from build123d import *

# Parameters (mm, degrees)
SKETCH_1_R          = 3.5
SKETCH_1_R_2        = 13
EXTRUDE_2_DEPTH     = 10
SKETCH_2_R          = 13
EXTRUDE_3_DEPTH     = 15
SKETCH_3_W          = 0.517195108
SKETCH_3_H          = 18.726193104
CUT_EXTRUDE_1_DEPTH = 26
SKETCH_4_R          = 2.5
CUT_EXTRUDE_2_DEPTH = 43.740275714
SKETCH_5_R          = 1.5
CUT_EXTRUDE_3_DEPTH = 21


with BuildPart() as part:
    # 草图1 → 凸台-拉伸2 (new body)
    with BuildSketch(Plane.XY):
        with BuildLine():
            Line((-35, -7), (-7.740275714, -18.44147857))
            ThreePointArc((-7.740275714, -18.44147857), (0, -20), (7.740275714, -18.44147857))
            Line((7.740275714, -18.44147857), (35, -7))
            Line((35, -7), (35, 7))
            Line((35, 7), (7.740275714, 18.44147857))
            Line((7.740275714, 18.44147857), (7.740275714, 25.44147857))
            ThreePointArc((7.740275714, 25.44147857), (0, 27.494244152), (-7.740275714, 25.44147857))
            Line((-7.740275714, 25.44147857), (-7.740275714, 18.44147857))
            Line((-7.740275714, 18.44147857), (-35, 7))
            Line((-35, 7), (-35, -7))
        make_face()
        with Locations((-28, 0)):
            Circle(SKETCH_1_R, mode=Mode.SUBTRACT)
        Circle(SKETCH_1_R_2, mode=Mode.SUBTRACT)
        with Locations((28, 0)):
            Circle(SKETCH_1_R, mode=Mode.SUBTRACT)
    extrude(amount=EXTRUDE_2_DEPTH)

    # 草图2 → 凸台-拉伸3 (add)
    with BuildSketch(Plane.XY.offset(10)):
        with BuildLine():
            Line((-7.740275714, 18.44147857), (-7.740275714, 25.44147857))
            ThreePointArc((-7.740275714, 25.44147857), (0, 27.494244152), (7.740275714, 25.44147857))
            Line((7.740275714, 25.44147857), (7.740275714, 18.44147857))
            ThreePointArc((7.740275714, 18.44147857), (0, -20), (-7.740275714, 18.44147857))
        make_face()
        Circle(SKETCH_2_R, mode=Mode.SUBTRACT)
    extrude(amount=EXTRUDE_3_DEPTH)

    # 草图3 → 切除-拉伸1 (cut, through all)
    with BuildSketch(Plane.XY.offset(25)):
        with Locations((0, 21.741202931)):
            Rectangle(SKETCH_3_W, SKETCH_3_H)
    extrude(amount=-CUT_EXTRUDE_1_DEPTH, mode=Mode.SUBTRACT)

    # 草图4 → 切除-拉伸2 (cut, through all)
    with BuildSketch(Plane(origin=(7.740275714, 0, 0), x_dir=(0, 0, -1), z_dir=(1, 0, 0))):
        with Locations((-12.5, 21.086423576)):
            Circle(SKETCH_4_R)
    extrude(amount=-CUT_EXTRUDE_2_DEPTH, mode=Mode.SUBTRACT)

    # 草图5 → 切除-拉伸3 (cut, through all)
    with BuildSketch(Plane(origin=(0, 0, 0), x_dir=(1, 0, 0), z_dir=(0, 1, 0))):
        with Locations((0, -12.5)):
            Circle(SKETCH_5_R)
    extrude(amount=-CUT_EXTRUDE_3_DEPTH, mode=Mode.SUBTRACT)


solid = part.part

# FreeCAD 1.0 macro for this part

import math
import FreeCAD as App
import Part
import Sketcher
Q = App.Units.Quantity


def add_polygon(sketch, points):
    """Adds a closed chain of lines whose ends are joined by coincident constraints."""
    first, n = sketch.GeometryCount, len(points)
    for a, b in zip(points, points[1:] + points[:1]):
        sketch.addGeometry(Part.LineSegment(App.Vector(*a, 0), App.Vector(*b, 0)), False)
    for i in range(n):
        sketch.addConstraint(Sketcher.Constraint("Coincident", first + i, 2, first + (i + 1) % n, 1))

doc = App.newDocument("Part")
body = doc.addObject("PartDesign::Body", "Body")

# Sketch on XY plane
sketch1 = doc.addObject("Sketcher::SketchObject", "Sketch")
body.addObject(sketch1)
sketch1.AttachmentSupport = (doc.XY_Plane, [""])
sketch1.MapMode = "FlatFace"
sketch1.addGeometry([
    Part.LineSegment(App.Vector(-35, -7, 0), App.Vector(-7.7, -18.4, 0)),  # 0
    Part.ArcOfCircle(Part.Circle(App.Vector(0, 0, 0), App.Vector(0, 0, 1), 20), math.radians(-113), math.radians(-67)),  # 1
    Part.LineSegment(App.Vector(7.7, -18.4, 0), App.Vector(35, -7, 0)),  # 2
    Part.LineSegment(App.Vector(35, -7, 0), App.Vector(35, 7, 0)),  # 3
    Part.LineSegment(App.Vector(35, 7, 0), App.Vector(7.7, 18.4, 0)),  # 4
    Part.LineSegment(App.Vector(7.7, 18.4, 0), App.Vector(7.7, 25.4, 0)),  # 5
    Part.ArcOfCircle(Part.Circle(App.Vector(0, 11.9, 0), App.Vector(0, 0, 1), 15.6), math.radians(60), math.radians(120)),  # 6
    Part.LineSegment(App.Vector(-7.7, 25.4, 0), App.Vector(-7.7, 18.4, 0)),  # 7
    Part.LineSegment(App.Vector(-7.7, 18.4, 0), App.Vector(-35, 7, 0)),  # 8
    Part.LineSegment(App.Vector(-35, 7, 0), App.Vector(-35, -7, 0)),  # 9
    Part.Circle(App.Vector(-28, 0, 0), App.Vector(0, 0, 1), 3.5),  # 10
    Part.Circle(App.Vector(0, 0, 0), App.Vector(0, 0, 1), 13),  # 11
    Part.Circle(App.Vector(28, 0, 0), App.Vector(0, 0, 1), 3.5),  # 12
], False)
sketch1.addConstraint([
    Sketcher.Constraint("Tangent", 0, 2, 1, 1),
    Sketcher.Constraint("Tangent", 1, 2, 2, 1),
    Sketcher.Constraint("Coincident", 2, 2, 3, 1),
    Sketcher.Constraint("Coincident", 3, 2, 4, 1),
    Sketcher.Constraint("Coincident", 4, 2, 5, 1),
    Sketcher.Constraint("Coincident", 5, 2, 6, 1),
    Sketcher.Constraint("Coincident", 6, 2, 7, 1),
    Sketcher.Constraint("Coincident", 7, 2, 8, 1),
    Sketcher.Constraint("Coincident", 8, 2, 9, 1),
    Sketcher.Constraint("Coincident", 9, 2, 0, 1),
    Sketcher.Constraint("Vertical", 3),
    Sketcher.Constraint("Vertical", 5),
    Sketcher.Constraint("Vertical", 7),
    Sketcher.Constraint("Vertical", 9),
    Sketcher.Constraint("Coincident", 1, 3, -1, 1),
    Sketcher.Constraint("Coincident", 11, 3, -1, 1),
    Sketcher.Constraint("Equal", 10, 12),
    Sketcher.Constraint("Symmetric", 10, 3, 12, 3, -1, 1),
    Sketcher.Constraint("Symmetric", 0, 2, 4, 2, -1, 1),
    Sketcher.Constraint("Symmetric", 1, 2, 7, 2, -1, 1),
    Sketcher.Constraint("Symmetric", 2, 2, 8, 2, -1, 1),
    Sketcher.Constraint("Symmetric", 5, 2, 6, 2, -2),
    Sketcher.Constraint("PointOnObject", 10, 3, -1),
    Sketcher.Constraint("Parallel", 0, 4),
    Sketcher.Constraint("Diameter", 10, Q("7 mm")),
    Sketcher.Constraint("Diameter", 11, Q("26 mm")),
    Sketcher.Constraint("Radius", 1, Q("20 mm")),
    Sketcher.Constraint("DistanceY", 3, 1, 3, 2, Q("14 mm")),
    Sketcher.Constraint("DistanceY", 5, 1, 5, 2, Q("7 mm")),
    Sketcher.Constraint("DistanceX", 10, 3, -1, 1, Q("28 mm")),
    Sketcher.Constraint("DistanceX", -1, 1, 2, 2, Q("35 mm")),
    Sketcher.Constraint("Radius", 6, Q("15.619347 mm")),
])
pad1 = doc.addObject("PartDesign::Pad", "Pad")
body.addObject(pad1)
pad1.Profile = sketch1
pad1.Length = 10

# Sketch on XY plane
sketch2 = doc.addObject("Sketcher::SketchObject", "Sketch001")
body.addObject(sketch2)
sketch2.AttachmentSupport = (doc.XY_Plane, [""])
sketch2.MapMode = "FlatFace"
sketch2.AttachmentOffset = App.Placement(App.Vector(0, 0, 10), App.Rotation())
sketch2.addGeometry([
    Part.LineSegment(App.Vector(-8, 25, 0), App.Vector(-8, 18, 0)),  # 0
    Part.ArcOfCircle(Part.Circle(App.Vector(0, 0, 0), App.Vector(0, 0, 1), 20), math.radians(113), math.radians(427)),  # 1
    Part.LineSegment(App.Vector(8, 18, 0), App.Vector(8, 25, 0)),  # 2
    Part.ArcOfCircle(Part.Circle(App.Vector(0, 12, 0), App.Vector(0, 0, 1), 16), math.radians(60), math.radians(120)),  # 3
    Part.Circle(App.Vector(0, 0, 0), App.Vector(0, 0, 1), 13),  # 4
], False)
sketch2.addConstraint([
    Sketcher.Constraint("Coincident", 0, 2, 1, 1),
    Sketcher.Constraint("Coincident", 1, 2, 2, 1),
    Sketcher.Constraint("Coincident", 2, 2, 3, 1),
    Sketcher.Constraint("Coincident", 3, 2, 0, 1),
    Sketcher.Constraint("Vertical", 0),
    Sketcher.Constraint("Vertical", 2),
    Sketcher.Constraint("Coincident", 1, 3, -1, 1),
    Sketcher.Constraint("Coincident", 4, 3, -1, 1),
    Sketcher.Constraint("Symmetric", 2, 2, 3, 2, -2),
    Sketcher.Constraint("Diameter", 4, Q("26 mm")),
    Sketcher.Constraint("Radius", 1, Q("20 mm")),
    Sketcher.Constraint("DistanceY", 0, 2, 0, 1, Q("7 mm")),
    Sketcher.Constraint("Radius", 3, Q("15.619347 mm")),
    Sketcher.Constraint("DistanceY", -1, 1, 0, 2, Q("18.441479 mm")),
])
pad2 = doc.addObject("PartDesign::Pad", "Pad001")
body.addObject(pad2)
pad2.Profile = sketch2
pad2.Length = 15

# Sketch on XY plane
sketch3 = doc.addObject("Sketcher::SketchObject", "Sketch002")
body.addObject(sketch3)
sketch3.AttachmentSupport = (doc.XY_Plane, [""])
sketch3.MapMode = "FlatFace"
sketch3.AttachmentOffset = App.Placement(App.Vector(0, 0, 25), App.Rotation())
add_polygon(sketch3, [(-0.3, 31.1), (-0.3, 12.4), (0.3, 12.4), (0.3, 31.1)])  # lines 0-3
sketch3.addConstraint([
    Sketcher.Constraint("Vertical", 0),
    Sketcher.Constraint("Horizontal", 1),
    Sketcher.Constraint("Vertical", 2),
    Sketcher.Constraint("Horizontal", 3),
    Sketcher.Constraint("DistanceY", -1, 1, 2, 2, Q("31.104299 mm")),
    Sketcher.Constraint("DistanceX", 1, 1, 1, 2, Q("0.517195 mm")),
    Sketcher.Constraint("DistanceY", 0, 2, 0, 1, Q("18.726193 mm")),
    Sketcher.Constraint("DistanceX", 0, 2, -1, 1, Q("0.258598 mm")),
])
pocket1 = doc.addObject("PartDesign::Pocket", "Pocket")
body.addObject(pocket1)
pocket1.Profile = sketch3
pocket1.Type = "ThroughAll"

# Sketch on YZ plane
sketch4 = doc.addObject("Sketcher::SketchObject", "Sketch003")
body.addObject(sketch4)
sketch4.AttachmentSupport = (doc.YZ_Plane, [""])
sketch4.MapMode = "FlatFace"
sketch4.AttachmentOffset = App.Placement(App.Vector(0, 0, 7.740276), App.Rotation())
sketch4.addGeometry(Part.Circle(App.Vector(21.1, 12.5, 0), App.Vector(0, 0, 1), 2.5), False)
sketch4.addConstraint([
    Sketcher.Constraint("Diameter", 0, Q("5 mm")),
    Sketcher.Constraint("DistanceY", -1, 1, 0, 3, Q("12.5 mm")),
    Sketcher.Constraint("DistanceX", -1, 1, 0, 3, Q("21.086424 mm")),
])
pocket2 = doc.addObject("PartDesign::Pocket", "Pocket001")
body.addObject(pocket2)
pocket2.Profile = sketch4
pocket2.Type = "ThroughAll"

# Sketch on XZ plane
sketch5 = doc.addObject("Sketcher::SketchObject", "Sketch004")
body.addObject(sketch5)
sketch5.AttachmentSupport = (doc.XZ_Plane, [""])
sketch5.MapMode = "FlatFace"
sketch5.addGeometry(Part.Circle(App.Vector(0, 12.5, 0), App.Vector(0, 0, 1), 1.5), False)
sketch5.addConstraint([
    Sketcher.Constraint("PointOnObject", 0, 3, -2),
    Sketcher.Constraint("Diameter", 0, Q("3 mm")),
    Sketcher.Constraint("DistanceY", -1, 1, 0, 3, Q("12.5 mm")),
])
pocket3 = doc.addObject("PartDesign::Pocket", "Pocket002")
body.addObject(pocket3)
pocket3.Profile = sketch5
pocket3.Type = "ThroughAll"
pocket3.Reversed = True

doc.recompute()
